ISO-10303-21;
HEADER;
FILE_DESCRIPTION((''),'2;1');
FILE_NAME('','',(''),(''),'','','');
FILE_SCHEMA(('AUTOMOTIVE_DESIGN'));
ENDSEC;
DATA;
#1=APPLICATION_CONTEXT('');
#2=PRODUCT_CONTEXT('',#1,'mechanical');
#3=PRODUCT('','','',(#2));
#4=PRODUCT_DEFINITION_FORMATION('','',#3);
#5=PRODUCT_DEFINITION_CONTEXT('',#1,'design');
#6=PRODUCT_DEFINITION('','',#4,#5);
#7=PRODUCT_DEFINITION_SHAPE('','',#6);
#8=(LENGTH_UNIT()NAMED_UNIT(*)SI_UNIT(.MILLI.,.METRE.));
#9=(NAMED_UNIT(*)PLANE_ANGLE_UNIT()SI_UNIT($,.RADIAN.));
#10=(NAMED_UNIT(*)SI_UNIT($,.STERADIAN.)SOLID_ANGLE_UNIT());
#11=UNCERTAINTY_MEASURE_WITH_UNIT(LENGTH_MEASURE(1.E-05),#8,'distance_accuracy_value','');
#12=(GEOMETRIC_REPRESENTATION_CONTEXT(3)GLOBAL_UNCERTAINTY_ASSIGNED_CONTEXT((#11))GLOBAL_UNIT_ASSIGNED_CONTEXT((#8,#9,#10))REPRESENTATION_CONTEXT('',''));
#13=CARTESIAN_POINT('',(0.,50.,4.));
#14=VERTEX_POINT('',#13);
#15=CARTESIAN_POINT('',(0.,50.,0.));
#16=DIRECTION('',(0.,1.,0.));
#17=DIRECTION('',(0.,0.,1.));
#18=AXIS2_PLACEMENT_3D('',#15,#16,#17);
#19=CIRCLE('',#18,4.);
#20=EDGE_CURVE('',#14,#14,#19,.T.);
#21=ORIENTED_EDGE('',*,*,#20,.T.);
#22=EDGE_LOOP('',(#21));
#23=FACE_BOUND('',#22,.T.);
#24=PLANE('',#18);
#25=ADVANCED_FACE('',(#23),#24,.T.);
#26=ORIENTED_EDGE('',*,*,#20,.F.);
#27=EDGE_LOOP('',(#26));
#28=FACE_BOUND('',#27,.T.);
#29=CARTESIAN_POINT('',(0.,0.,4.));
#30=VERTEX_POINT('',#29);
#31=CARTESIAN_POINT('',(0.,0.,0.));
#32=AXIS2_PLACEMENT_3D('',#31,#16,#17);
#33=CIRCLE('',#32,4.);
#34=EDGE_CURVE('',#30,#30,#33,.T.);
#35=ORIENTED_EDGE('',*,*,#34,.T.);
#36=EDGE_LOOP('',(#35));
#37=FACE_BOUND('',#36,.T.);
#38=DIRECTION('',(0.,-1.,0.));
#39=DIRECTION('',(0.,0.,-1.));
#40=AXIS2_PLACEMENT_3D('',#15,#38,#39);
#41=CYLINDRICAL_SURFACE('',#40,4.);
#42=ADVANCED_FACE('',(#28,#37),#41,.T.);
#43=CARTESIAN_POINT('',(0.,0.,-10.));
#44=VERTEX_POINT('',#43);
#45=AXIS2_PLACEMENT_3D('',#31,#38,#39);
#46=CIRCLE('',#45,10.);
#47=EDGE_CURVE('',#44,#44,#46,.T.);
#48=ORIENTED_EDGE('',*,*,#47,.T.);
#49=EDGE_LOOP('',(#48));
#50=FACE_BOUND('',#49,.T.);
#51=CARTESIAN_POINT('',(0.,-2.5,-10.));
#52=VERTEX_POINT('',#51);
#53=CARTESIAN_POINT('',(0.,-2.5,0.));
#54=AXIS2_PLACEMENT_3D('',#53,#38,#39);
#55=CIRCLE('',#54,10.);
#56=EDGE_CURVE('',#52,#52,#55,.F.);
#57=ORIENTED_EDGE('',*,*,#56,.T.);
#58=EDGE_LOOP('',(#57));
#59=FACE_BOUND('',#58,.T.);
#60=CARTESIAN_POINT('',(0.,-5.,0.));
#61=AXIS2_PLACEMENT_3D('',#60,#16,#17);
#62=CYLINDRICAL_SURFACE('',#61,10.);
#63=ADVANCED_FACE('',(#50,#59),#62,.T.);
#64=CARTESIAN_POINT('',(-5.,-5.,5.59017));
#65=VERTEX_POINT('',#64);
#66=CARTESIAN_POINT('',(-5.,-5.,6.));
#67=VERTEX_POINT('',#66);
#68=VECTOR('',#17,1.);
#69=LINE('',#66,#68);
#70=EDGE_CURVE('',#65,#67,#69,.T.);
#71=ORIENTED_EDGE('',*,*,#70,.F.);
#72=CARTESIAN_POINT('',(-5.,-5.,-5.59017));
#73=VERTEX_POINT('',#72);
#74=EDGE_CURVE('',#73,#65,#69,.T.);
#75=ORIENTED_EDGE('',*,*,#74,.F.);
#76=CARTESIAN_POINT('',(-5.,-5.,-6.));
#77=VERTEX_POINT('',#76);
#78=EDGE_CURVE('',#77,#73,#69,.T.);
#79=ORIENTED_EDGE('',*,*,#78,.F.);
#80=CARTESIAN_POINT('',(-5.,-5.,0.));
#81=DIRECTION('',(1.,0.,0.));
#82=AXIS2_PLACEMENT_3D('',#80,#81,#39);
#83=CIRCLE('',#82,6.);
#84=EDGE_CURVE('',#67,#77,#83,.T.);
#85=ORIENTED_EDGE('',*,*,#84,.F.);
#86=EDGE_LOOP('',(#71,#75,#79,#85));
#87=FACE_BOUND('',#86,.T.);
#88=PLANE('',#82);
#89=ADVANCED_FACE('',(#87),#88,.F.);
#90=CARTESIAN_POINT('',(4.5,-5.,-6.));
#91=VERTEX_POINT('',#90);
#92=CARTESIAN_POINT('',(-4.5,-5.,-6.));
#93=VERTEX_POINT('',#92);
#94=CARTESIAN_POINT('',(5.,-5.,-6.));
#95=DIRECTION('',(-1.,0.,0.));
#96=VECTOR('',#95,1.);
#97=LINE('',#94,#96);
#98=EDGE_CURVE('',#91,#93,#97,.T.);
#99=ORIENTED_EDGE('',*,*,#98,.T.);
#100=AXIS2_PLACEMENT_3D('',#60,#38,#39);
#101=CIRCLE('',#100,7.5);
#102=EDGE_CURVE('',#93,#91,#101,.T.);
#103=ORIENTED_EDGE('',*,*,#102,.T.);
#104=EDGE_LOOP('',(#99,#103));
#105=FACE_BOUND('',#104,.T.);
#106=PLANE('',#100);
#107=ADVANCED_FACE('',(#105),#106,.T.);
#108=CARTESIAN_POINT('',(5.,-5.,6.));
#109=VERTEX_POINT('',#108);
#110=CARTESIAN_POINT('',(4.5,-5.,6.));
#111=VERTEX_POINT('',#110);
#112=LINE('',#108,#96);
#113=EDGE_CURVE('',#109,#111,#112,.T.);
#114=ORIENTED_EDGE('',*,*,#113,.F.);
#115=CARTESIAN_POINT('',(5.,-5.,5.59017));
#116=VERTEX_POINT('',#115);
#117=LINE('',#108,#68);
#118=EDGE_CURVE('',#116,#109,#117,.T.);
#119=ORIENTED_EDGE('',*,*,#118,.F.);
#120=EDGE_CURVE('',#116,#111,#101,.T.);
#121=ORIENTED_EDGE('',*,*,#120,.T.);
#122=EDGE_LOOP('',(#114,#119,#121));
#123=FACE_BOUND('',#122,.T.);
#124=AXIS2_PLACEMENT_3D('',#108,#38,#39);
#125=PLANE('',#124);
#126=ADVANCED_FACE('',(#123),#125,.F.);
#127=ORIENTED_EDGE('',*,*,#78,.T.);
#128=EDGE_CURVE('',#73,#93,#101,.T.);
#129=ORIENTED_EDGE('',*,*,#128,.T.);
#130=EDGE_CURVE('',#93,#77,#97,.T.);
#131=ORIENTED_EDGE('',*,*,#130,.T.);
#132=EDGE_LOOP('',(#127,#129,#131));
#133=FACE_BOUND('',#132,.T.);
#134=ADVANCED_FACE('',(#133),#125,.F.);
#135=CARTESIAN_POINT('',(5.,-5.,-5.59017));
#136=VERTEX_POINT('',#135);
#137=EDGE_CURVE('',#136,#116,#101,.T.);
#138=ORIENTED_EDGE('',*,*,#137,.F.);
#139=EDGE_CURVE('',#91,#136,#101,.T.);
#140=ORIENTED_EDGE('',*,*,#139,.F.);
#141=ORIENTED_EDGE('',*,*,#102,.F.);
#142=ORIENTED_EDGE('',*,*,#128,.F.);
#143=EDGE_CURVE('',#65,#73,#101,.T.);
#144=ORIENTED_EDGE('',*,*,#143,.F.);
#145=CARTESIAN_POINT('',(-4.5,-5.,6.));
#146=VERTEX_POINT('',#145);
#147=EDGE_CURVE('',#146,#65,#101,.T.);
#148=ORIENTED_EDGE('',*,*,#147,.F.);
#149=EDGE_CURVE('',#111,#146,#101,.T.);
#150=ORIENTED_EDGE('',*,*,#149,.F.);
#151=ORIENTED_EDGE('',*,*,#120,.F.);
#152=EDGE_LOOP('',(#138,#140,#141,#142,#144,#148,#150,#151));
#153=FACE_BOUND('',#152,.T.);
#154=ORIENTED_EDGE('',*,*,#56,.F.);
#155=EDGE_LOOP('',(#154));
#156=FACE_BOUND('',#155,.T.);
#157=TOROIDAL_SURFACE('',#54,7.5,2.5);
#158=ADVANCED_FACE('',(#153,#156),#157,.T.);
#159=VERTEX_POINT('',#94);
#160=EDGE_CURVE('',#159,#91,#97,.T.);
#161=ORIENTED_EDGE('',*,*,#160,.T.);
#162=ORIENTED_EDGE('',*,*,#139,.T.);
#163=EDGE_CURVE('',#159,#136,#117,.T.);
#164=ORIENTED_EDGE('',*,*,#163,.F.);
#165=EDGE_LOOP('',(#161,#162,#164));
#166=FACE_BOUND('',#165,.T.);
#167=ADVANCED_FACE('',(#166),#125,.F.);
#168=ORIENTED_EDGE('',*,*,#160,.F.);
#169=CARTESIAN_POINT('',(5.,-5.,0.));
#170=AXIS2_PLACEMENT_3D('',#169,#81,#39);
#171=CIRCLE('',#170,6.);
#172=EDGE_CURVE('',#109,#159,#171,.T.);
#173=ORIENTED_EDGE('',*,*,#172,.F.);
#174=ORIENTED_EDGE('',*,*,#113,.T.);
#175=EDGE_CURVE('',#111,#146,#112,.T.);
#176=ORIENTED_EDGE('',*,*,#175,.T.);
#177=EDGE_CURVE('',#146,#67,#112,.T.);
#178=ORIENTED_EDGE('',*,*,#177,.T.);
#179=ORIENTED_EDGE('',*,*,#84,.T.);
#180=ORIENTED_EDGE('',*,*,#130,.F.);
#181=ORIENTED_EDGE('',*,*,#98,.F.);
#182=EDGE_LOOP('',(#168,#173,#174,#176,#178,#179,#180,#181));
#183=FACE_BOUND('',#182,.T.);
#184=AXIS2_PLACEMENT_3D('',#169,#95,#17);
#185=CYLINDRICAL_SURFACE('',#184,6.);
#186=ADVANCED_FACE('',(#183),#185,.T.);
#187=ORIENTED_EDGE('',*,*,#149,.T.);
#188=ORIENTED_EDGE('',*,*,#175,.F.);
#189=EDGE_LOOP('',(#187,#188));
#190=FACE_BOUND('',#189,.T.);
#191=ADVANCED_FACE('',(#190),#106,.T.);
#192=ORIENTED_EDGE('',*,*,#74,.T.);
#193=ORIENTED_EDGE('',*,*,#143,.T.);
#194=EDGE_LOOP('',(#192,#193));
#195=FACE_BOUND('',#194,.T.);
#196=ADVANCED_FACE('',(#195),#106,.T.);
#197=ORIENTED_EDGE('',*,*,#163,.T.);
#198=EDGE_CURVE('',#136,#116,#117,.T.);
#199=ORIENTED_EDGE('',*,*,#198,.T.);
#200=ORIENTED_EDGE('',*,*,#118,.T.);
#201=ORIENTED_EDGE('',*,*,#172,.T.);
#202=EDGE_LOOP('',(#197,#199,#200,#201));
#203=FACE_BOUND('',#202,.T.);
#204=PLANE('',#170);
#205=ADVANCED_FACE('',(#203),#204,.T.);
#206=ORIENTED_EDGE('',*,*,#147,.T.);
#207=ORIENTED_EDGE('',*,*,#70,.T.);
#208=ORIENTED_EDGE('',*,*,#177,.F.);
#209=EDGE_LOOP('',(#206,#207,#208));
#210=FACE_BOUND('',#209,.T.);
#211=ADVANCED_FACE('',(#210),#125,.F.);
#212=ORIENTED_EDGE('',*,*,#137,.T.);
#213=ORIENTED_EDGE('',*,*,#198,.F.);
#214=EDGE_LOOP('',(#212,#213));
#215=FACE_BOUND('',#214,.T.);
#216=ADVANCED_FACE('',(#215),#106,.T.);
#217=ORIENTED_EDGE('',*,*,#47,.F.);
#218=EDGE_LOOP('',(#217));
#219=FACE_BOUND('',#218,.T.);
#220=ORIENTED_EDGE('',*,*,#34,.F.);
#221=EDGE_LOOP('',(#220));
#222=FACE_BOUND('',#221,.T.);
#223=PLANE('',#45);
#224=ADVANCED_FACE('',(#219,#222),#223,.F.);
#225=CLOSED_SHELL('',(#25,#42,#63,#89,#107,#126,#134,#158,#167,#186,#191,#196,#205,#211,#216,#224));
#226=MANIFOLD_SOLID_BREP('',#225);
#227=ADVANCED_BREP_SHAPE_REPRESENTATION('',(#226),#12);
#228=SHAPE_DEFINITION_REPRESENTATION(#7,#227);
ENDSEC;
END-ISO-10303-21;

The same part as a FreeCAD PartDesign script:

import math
import FreeCAD as App
import Part
import Sketcher
from FreeCAD import Vector


def edges_at(feature, points):
    """Names of the edges that pass closest to the given points."""
    edges = feature.Shape.Edges
    near = lambda p: min(range(len(edges)), key=lambda i: edges[i].distToShape(Part.Vertex(*p))[0])
    return sorted({f"Edge{near(p) + 1}" for p in points})

doc = App.newDocument("Part")
params = doc.addObject("Spreadsheet::Sheet", "Params")
for row, (alias, value) in enumerate([
    ("sketch1_diameter", "8 mm"),
    ("pad1_length", "50 mm"),
    ("sketch2_diameter", "20 mm"),
    ("pad2_length", "5 mm"),
    ("fillet_radius", "2.5 mm"),
    ("sketch3_radius", "6 mm"),
    ("pad3_length", "10 mm"),
], start=1):
    params.set(f"A{row}", alias)
    params.set(f"B{row}", "=" + value)
    params.setAlias(f"B{row}", alias)

body = doc.addObject("PartDesign::Body", "Body")

# Sketch on XZ plane
sketch1 = body.newObject("Sketcher::SketchObject", "Sketch")
sketch1.AttachmentSupport = (doc.getObject("XZ_Plane"), [""])
sketch1.MapMode = "FlatFace"
sketch1.addGeometry(Part.Circle(Vector(0, 0, 0), Vector(0, 0, 1), 4), False)
sketch1.addConstraint(Sketcher.Constraint("Coincident", 0, 3, -1, 1))
sketch1.addConstraint(Sketcher.Constraint("Diameter", 0, 8.0))
sketch1.setExpression("Constraints[1]", "Params.sketch1_diameter")
pad1 = body.newObject("PartDesign::Pad", "Pad")
pad1.Profile = sketch1
pad1.setExpression("Length", "Params.pad1_length")
pad1.Reversed = True

# Sketch on XZ plane
sketch2 = body.newObject("Sketcher::SketchObject", "Sketch001")
sketch2.AttachmentSupport = (doc.getObject("XZ_Plane"), [""])
sketch2.MapMode = "FlatFace"
sketch2.addGeometry(Part.Circle(Vector(0, 0, 0), Vector(0, 0, 1), 10), False)
sketch2.addConstraint(Sketcher.Constraint("Coincident", 0, 3, -1, 1))
sketch2.addConstraint(Sketcher.Constraint("Diameter", 0, 20.0))
sketch2.setExpression("Constraints[1]", "Params.sketch2_diameter")
pad2 = body.newObject("PartDesign::Pad", "Pad001")
pad2.Profile = sketch2
pad2.setExpression("Length", "Params.pad2_length")
doc.recompute()

fillet = body.newObject("PartDesign::Fillet", "Fillet")
fillet.Base = (pad2, edges_at(pad2, [(0, -5, 10)]))
fillet.setExpression("Radius", "Params.fillet_radius")

# Sketch on YZ plane
sketch3 = body.newObject("Sketcher::SketchObject", "Sketch002")
sketch3.AttachmentSupport = (doc.getObject("YZ_Plane"), [""])
sketch3.MapMode = "FlatFace"
sketch3.addGeometry(Part.LineSegment(Vector(-5, -6, 0), Vector(-5, 6, 0)), False)
sketch3.addGeometry(Part.ArcOfCircle(Part.Circle(Vector(-5, 0, 0), Vector(0, 0, 1), 6), math.radians(90), math.radians(270)), False)
sketch3.addConstraint(Sketcher.Constraint("Coincident", 0, 1, 1, 2))
sketch3.addConstraint(Sketcher.Constraint("Coincident", 1, 1, 0, 2))
sketch3.addConstraint(Sketcher.Constraint("Vertical", 0))
sketch3.addConstraint(Sketcher.Constraint("PointOnObject", 1, 3, -1))
sketch3.addConstraint(Sketcher.Constraint("Vertical", 1, 3, 0, 1))
sketch3.addConstraint(Sketcher.Constraint("Radius", 1, 6.0))
sketch3.addConstraint(Sketcher.Constraint("DistanceX", 1, 3, -1, 1, 5.0))
sketch3.setExpression("Constraints[5]", "Params.sketch3_radius")
pad3 = body.newObject("PartDesign::Pad", "Pad002")
pad3.Profile = sketch3
pad3.setExpression("Length", "Params.pad3_length")
pad3.Midplane = True

doc.recompute()
